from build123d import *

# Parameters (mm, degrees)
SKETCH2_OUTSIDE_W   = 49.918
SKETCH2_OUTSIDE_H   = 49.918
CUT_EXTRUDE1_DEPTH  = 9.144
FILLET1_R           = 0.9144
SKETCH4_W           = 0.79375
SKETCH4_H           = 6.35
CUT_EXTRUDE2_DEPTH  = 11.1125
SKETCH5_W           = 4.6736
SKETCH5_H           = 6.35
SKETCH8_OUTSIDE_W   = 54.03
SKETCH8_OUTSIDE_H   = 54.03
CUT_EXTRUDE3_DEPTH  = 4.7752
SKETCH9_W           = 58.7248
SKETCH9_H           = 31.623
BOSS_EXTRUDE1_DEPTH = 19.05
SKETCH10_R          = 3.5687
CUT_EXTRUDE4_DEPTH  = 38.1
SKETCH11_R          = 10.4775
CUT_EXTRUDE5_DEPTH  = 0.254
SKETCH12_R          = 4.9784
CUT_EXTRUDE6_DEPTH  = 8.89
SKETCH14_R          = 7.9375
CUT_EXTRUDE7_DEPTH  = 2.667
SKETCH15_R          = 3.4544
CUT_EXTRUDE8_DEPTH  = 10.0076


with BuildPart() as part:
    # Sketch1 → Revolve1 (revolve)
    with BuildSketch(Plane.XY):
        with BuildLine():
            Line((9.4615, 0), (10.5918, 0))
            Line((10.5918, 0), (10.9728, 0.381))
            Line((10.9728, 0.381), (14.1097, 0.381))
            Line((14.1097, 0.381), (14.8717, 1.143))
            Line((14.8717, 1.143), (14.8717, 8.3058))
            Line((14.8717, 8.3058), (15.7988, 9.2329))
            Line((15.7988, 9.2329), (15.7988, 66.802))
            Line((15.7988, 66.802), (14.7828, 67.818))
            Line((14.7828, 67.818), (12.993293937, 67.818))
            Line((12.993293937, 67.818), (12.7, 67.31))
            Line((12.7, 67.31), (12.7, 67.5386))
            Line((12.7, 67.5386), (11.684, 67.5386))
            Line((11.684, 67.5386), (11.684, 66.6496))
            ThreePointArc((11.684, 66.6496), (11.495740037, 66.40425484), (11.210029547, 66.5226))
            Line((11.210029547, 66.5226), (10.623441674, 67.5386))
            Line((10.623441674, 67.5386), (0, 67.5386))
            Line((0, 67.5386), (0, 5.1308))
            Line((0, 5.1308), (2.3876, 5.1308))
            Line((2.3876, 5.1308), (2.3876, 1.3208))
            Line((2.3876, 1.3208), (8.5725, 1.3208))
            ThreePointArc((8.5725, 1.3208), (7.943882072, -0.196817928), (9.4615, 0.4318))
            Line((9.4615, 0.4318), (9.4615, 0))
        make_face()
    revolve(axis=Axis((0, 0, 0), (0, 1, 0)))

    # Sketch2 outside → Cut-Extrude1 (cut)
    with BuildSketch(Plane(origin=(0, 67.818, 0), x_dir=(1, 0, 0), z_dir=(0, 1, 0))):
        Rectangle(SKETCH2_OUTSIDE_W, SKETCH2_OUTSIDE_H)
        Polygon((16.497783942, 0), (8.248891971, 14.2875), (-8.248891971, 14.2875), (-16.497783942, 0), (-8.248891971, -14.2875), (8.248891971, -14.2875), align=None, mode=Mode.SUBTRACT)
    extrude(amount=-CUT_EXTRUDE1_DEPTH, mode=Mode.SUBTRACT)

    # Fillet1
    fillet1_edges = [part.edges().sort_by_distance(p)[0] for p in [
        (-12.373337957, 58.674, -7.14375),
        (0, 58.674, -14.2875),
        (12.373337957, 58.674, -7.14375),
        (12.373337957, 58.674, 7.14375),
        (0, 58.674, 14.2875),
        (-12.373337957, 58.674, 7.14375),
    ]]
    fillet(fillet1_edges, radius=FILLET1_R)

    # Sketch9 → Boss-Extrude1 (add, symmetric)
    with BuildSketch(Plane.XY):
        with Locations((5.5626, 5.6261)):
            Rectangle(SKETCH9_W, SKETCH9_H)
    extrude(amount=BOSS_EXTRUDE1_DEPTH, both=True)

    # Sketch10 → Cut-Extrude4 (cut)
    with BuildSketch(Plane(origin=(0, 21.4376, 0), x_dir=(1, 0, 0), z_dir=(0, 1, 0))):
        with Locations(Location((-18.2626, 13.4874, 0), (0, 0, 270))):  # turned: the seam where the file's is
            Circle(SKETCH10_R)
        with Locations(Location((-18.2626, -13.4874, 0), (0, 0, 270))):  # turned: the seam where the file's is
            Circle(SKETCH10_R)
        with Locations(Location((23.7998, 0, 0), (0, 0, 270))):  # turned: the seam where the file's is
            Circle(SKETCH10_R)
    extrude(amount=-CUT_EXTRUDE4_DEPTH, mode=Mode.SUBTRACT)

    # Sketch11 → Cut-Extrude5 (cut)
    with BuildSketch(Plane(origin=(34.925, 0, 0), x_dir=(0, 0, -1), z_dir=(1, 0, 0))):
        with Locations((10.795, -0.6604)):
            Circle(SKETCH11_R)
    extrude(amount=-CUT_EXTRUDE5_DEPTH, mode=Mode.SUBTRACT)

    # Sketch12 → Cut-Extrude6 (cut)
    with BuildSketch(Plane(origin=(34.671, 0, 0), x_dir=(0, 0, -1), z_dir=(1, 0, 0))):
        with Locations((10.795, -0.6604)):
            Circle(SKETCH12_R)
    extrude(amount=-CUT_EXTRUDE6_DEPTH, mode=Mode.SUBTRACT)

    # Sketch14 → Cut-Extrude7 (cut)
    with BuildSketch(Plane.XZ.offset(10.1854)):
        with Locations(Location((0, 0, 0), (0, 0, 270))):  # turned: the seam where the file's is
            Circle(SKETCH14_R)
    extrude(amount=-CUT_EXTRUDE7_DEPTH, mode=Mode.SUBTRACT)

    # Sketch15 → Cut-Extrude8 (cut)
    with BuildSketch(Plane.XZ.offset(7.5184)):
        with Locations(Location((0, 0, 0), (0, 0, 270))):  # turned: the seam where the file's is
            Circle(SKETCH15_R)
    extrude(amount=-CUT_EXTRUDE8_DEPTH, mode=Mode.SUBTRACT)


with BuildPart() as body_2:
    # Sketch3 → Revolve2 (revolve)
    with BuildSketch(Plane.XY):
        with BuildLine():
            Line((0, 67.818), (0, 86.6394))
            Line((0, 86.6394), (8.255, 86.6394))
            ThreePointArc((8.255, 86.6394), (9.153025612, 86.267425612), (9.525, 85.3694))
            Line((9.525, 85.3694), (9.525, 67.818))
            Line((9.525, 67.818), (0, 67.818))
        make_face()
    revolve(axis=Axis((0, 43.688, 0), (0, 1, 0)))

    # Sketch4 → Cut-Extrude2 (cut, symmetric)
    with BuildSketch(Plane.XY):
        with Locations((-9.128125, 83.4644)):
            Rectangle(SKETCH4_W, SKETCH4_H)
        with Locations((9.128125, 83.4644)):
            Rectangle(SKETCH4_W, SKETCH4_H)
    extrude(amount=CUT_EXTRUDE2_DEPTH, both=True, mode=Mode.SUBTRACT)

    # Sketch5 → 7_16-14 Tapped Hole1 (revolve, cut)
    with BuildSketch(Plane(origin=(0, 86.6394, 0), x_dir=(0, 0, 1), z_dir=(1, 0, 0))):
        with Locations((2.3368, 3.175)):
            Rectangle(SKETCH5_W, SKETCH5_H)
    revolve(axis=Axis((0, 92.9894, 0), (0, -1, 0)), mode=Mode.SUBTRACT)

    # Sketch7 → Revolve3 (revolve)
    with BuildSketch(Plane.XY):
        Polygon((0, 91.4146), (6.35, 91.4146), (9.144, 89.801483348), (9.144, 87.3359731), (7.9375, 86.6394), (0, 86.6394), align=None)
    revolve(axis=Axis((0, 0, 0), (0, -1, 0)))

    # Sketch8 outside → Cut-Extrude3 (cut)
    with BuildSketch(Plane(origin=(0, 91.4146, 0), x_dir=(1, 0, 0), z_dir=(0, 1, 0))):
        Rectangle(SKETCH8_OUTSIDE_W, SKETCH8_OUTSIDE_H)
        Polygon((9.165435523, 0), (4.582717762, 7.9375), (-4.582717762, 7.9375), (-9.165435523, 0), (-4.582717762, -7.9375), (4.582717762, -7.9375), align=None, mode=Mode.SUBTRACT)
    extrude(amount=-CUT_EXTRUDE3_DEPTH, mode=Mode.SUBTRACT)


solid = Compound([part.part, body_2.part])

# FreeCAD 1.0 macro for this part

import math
import FreeCAD as App
import Part
import Sketcher
Q = App.Units.Quantity


def edges_at(feature, points):
    """Names of the edges that pass closest to the given points."""
    edges = feature.Shape.Edges
    near = lambda p: min(range(len(edges)), key=lambda i: edges[i].distToShape(Part.Vertex(*p))[0])
    return sorted({f"Edge{near(p) + 1}" for p in points})

doc = App.newDocument("Part")
body = doc.addObject("PartDesign::Body", "Body")

sketch1 = body.newObject("Sketcher::SketchObject", "Sketch")
sketch1.AttachmentSupport = (doc.getObject("XY_Plane"), [""])
sketch1.MapMode = "FlatFace"
sketch1.addGeometry([
    Part.LineSegment(App.Vector(9.4615, 0, 0), App.Vector(10.5918, 0, 0)),
    Part.LineSegment(App.Vector(10.5918, 0, 0), App.Vector(10.9728, 0.381, 0)),
    Part.LineSegment(App.Vector(10.9728, 0.381, 0), App.Vector(14.1097, 0.381, 0)),
    Part.LineSegment(App.Vector(14.1097, 0.381, 0), App.Vector(14.8717, 1.143, 0)),
    Part.LineSegment(App.Vector(14.8717, 1.143, 0), App.Vector(14.8717, 8.3058, 0)),
    Part.LineSegment(App.Vector(14.8717, 8.3058, 0), App.Vector(15.7988, 9.2329, 0)),
    Part.LineSegment(App.Vector(15.7988, 9.2329, 0), App.Vector(15.7988, 66.802, 0)),
    Part.LineSegment(App.Vector(15.7988, 66.802, 0), App.Vector(14.7828, 67.818, 0)),
    Part.LineSegment(App.Vector(14.7828, 67.818, 0), App.Vector(12.993294, 67.818, 0)),
    Part.LineSegment(App.Vector(12.993294, 67.818, 0), App.Vector(12.7, 67.31, 0)),
    Part.LineSegment(App.Vector(12.7, 67.31, 0), App.Vector(12.7, 67.5386, 0)),
    Part.LineSegment(App.Vector(12.7, 67.5386, 0), App.Vector(11.684, 67.5386, 0)),
    Part.LineSegment(App.Vector(11.684, 67.5386, 0), App.Vector(11.684, 66.6496, 0)),
    Part.ArcOfCircle(Part.Circle(App.Vector(11.43, 66.6496, 0), App.Vector(0, 0, 1), 0.254), math.radians(-150), math.radians(0)),
    Part.LineSegment(App.Vector(11.21003, 66.5226, 0), App.Vector(10.623442, 67.5386, 0)),
    Part.LineSegment(App.Vector(10.623442, 67.5386, 0), App.Vector(0, 67.5386, 0)),
    Part.LineSegment(App.Vector(0, 67.5386, 0), App.Vector(0, 5.1308, 0)),
    Part.LineSegment(App.Vector(0, 5.1308, 0), App.Vector(2.3876, 5.1308, 0)),
    Part.LineSegment(App.Vector(2.3876, 5.1308, 0), App.Vector(2.3876, 1.3208, 0)),
    Part.LineSegment(App.Vector(2.3876, 1.3208, 0), App.Vector(8.5725, 1.3208, 0)),
    Part.ArcOfCircle(Part.Circle(App.Vector(8.5725, 0.4318, 0), App.Vector(0, 0, 1), 0.889), math.radians(90), math.radians(360)),
    Part.LineSegment(App.Vector(9.4615, 0.4318, 0), App.Vector(9.4615, 0, 0)),
], False)
sketch1.addConstraint([
    Sketcher.Constraint("Coincident", 0, 2, 1, 1),
    Sketcher.Constraint("Coincident", 1, 2, 2, 1),
    Sketcher.Constraint("Coincident", 2, 2, 3, 1),
    Sketcher.Constraint("Coincident", 3, 2, 4, 1),
    Sketcher.Constraint("Coincident", 4, 2, 5, 1),
    Sketcher.Constraint("Coincident", 5, 2, 6, 1),
    Sketcher.Constraint("Coincident", 6, 2, 7, 1),
    Sketcher.Constraint("Coincident", 7, 2, 8, 1),
    Sketcher.Constraint("Coincident", 8, 2, 9, 1),
    Sketcher.Constraint("Coincident", 9, 2, 10, 1),
    Sketcher.Constraint("Coincident", 10, 2, 11, 1),
    Sketcher.Constraint("Coincident", 11, 2, 12, 1),
    Sketcher.Constraint("Tangent", 12, 2, 13, 2),
    Sketcher.Constraint("Tangent", 13, 1, 14, 1),
    Sketcher.Constraint("Coincident", 14, 2, 15, 1),
    Sketcher.Constraint("Coincident", 15, 2, 16, 1),
    Sketcher.Constraint("Coincident", 16, 2, 17, 1),
    Sketcher.Constraint("Coincident", 17, 2, 18, 1),
    Sketcher.Constraint("Coincident", 18, 2, 19, 1),
    Sketcher.Constraint("Tangent", 19, 2, 20, 1),
    Sketcher.Constraint("Tangent", 20, 2, 21, 1),
    Sketcher.Constraint("Coincident", 21, 2, 0, 1),
    Sketcher.Constraint("Horizontal", 0),
    Sketcher.Constraint("Horizontal", 2),
    Sketcher.Constraint("Vertical", 4),
    Sketcher.Constraint("Vertical", 6),
    Sketcher.Constraint("Horizontal", 8),
    Sketcher.Constraint("Vertical", 10),
    Sketcher.Constraint("Horizontal", 11),
    Sketcher.Constraint("Vertical", 12),
    Sketcher.Constraint("Horizontal", 15),
    Sketcher.Constraint("Vertical", 16),
    Sketcher.Constraint("Horizontal", 17),
    Sketcher.Constraint("Vertical", 18),
    Sketcher.Constraint("Horizontal", 19),
    Sketcher.Constraint("Vertical", 21),
    Sketcher.Constraint("PointOnObject", 0, 2, -1),
    Sketcher.Constraint("PointOnObject", 15, 2, -2),
    Sketcher.Constraint("Parallel", 1, 3),
    Sketcher.Constraint("Parallel", 3, 5),
    Sketcher.Constraint("Perpendicular", 5, 7),
    Sketcher.Constraint("Horizontal", 11, 2, 14, 2),
    Sketcher.Constraint("Radius", 13, Q("0.01 in")),
    Sketcher.Constraint("Angle", 1, Q("45 deg")),
    Sketcher.Constraint("Angle", 9, Q("-120 deg")),
    Sketcher.Constraint("Angle", 14, Q("120 deg")),
    Sketcher.Constraint("Radius", 20, Q("0.035 in")),
    Sketcher.Constraint("DistanceX", 11, 2, 11, 1, Q("0.04 in")),
    Sketcher.Constraint("DistanceY", 18, 2, 18, 1, Q("0.15 in")),
    Sketcher.Constraint("DistanceX", -1, 1, 9, 2, Q("0.5 in")),
    Sketcher.Constraint("DistanceX", 17, 1, 17, 2, Q("0.094 in")),
    Sketcher.Constraint("DistanceY", 4, 1, 4, 2, Q("0.282 in")),
    Sketcher.Constraint("DistanceY", 10, 1, 10, 2, Q("0.009 in")),
    Sketcher.Constraint("DistanceY", 12, 2, 12, 1, Q("0.035 in")),
    Sketcher.Constraint("DistanceY", 16, 2, 16, 1, Q("2.457 in")),
    Sketcher.Constraint("DistanceY", 21, 2, 21, 1, Q("0.017 in")),
    Sketcher.Constraint("DistanceY", -1, 1, 6, 2, Q("2.63 in")),
    Sketcher.Constraint("DistanceY", -1, 1, 7, 2, Q("2.67 in")),
    Sketcher.Constraint("DistanceX", 2, 2, 3, 2, Q("0.03 in")),
    Sketcher.Constraint("DistanceY", 20, 3, 4, 2, Q("0.31 in")),
    Sketcher.Constraint("DistanceX", 1, 2, 5, 2, Q("0.19 in")),
    Sketcher.Constraint("DistanceX", 0, 1, 0, 2, Q("0.0445 in")),
    Sketcher.Constraint("DistanceX", 2, 1, 2, 2, Q("0.1235 in")),
    Sketcher.Constraint("DistanceX", 19, 1, 19, 2, Q("0.2435 in")),
])
revolution = body.newObject("PartDesign::Revolution", "Revolution")
revolution.Profile = sketch1
revolution.ReferenceAxis = (sketch1, ["V_Axis"])
revolution.Angle = 360

sketch2 = body.newObject("Sketcher::SketchObject", "Sketch001")
sketch2.AttachmentSupport = (doc.getObject("XZ_Plane"), [""])
sketch2.MapMode = "FlatFace"
sketch2.AttachmentOffset = App.Placement(App.Vector(0, 0, -2.67 * 25.4), App.Rotation())
sketch2.addGeometry([
    Part.LineSegment(App.Vector(-24.959, -24.959, 0), App.Vector(-24.959, 24.959, 0)),
    Part.LineSegment(App.Vector(-24.959, 24.959, 0), App.Vector(24.959, 24.959, 0)),
    Part.LineSegment(App.Vector(24.959, 24.959, 0), App.Vector(24.959, -24.959, 0)),
    Part.LineSegment(App.Vector(24.959, -24.959, 0), App.Vector(-24.959, -24.959, 0)),
    Part.LineSegment(App.Vector(8.248892, -14.2875, 0), App.Vector(16.497784, 0, 0)),
    Part.LineSegment(App.Vector(16.497784, 0, 0), App.Vector(8.248892, 14.2875, 0)),
    Part.LineSegment(App.Vector(8.248892, 14.2875, 0), App.Vector(-8.248892, 14.2875, 0)),
    Part.LineSegment(App.Vector(-8.248892, 14.2875, 0), App.Vector(-16.497784, 0, 0)),
    Part.LineSegment(App.Vector(-16.497784, 0, 0), App.Vector(-8.248892, -14.2875, 0)),
    Part.LineSegment(App.Vector(-8.248892, -14.2875, 0), App.Vector(8.248892, -14.2875, 0)),
], False)
sketch2.addConstraint([
    Sketcher.Constraint("Coincident", 0, 2, 1, 1),
    Sketcher.Constraint("Coincident", 1, 2, 2, 1),
    Sketcher.Constraint("Coincident", 2, 2, 3, 1),
    Sketcher.Constraint("Coincident", 3, 2, 0, 1),
    Sketcher.Constraint("Coincident", 4, 2, 5, 1),
    Sketcher.Constraint("Coincident", 5, 2, 6, 1),
    Sketcher.Constraint("Coincident", 6, 2, 7, 1),
    Sketcher.Constraint("Coincident", 7, 2, 8, 1),
    Sketcher.Constraint("Coincident", 8, 2, 9, 1),
    Sketcher.Constraint("Coincident", 9, 2, 4, 1),
    Sketcher.Constraint("Vertical", 0),
    Sketcher.Constraint("Horizontal", 1),
    Sketcher.Constraint("Vertical", 2),
    Sketcher.Constraint("Horizontal", 3),
    Sketcher.Constraint("Horizontal", 6),
    Sketcher.Constraint("Horizontal", 9),
    Sketcher.Constraint("Symmetric", 0, 2, 2, 2, -1, 1),
    Sketcher.Constraint("Symmetric", 4, 2, 7, 2, -1, 1),
    Sketcher.Constraint("Symmetric", 5, 2, 8, 2, -1, 1),
    Sketcher.Constraint("PointOnObject", 4, 2, -1),
    Sketcher.Constraint("Parallel", 4, 7),
    Sketcher.Constraint("Vertical", 6, 2, 8, 2),
    Sketcher.Constraint("Equal", 3, 0),
    Sketcher.Constraint("Angle", 4, Q("60 deg")),
    Sketcher.Constraint("DistanceY", -1, 1, 5, 2, Q("0.5625 in")),
    Sketcher.Constraint("DistanceX", 1, 1, 1, 2, 49.918),
    Sketcher.Constraint("DistanceX", 6, 2, 6, 1, 16.497784),
])
pocket1 = body.newObject("PartDesign::Pocket", "Pocket")
pocket1.Profile = sketch2
pocket1.Length = Q("0.36 in")
pocket1.Reversed = True
doc.recompute()

fillet = body.newObject("PartDesign::Fillet", "Fillet")
fillet.Base = (pocket1, edges_at(pocket1, [
    (-12.373, 58.674, -7.144),
    (0, 58.674, -14.287),
    (12.373, 58.674, -7.144),
    (12.373, 58.674, 7.144),
    (0, 58.674, 14.287),
    (-12.373, 58.674, 7.144),
]))
fillet.Radius = Q("0.036 in")

sketch3 = body.newObject("Sketcher::SketchObject", "Sketch002")
sketch3.AttachmentSupport = (doc.getObject("XY_Plane"), [""])
sketch3.MapMode = "FlatFace"
sketch3.addGeometry([
    Part.LineSegment(App.Vector(-23.7998, 21.4376, 0), App.Vector(-23.7998, -10.1854, 0)),
    Part.LineSegment(App.Vector(-23.7998, -10.1854, 0), App.Vector(34.925, -10.1854, 0)),
    Part.LineSegment(App.Vector(34.925, -10.1854, 0), App.Vector(34.925, 21.4376, 0)),
    Part.LineSegment(App.Vector(34.925, 21.4376, 0), App.Vector(-23.7998, 21.4376, 0)),
], False)
sketch3.addConstraint([
    Sketcher.Constraint("Coincident", 0, 2, 1, 1),
    Sketcher.Constraint("Coincident", 1, 2, 2, 1),
    Sketcher.Constraint("Coincident", 2, 2, 3, 1),
    Sketcher.Constraint("Coincident", 3, 2, 0, 1),
    Sketcher.Constraint("Vertical", 0),
    Sketcher.Constraint("Horizontal", 1),
    Sketcher.Constraint("Vertical", 2),
    Sketcher.Constraint("Horizontal", 3),
    Sketcher.Constraint("DistanceX", 1, 1, 1, 2, Q("2.312 in")),
    Sketcher.Constraint("DistanceY", 0, 2, 0, 1, Q("1.245 in")),
    Sketcher.Constraint("DistanceX", 0, 2, -1, 1, Q("0.937 in")),
    Sketcher.Constraint("DistanceY", 0, 2, -1, 1, Q("0.401 in")),
])
pad1 = body.newObject("PartDesign::Pad", "Pad")
pad1.Profile = sketch3
pad1.Length = Q("1.5 in")
pad1.Midplane = True

sketch4 = body.newObject("Sketcher::SketchObject", "Sketch003")
sketch4.AttachmentSupport = (doc.getObject("XZ_Plane"), [""])
sketch4.MapMode = "FlatFace"
sketch4.AttachmentOffset = App.Placement(App.Vector(0, 0, -0.844 * 25.4), App.Rotation())
sketch4.addGeometry([
    Part.Circle(App.Vector(-18.2626, -13.4874, 0), App.Vector(0, 0, 1), 3.5687),
    Part.Circle(App.Vector(-18.2626, 13.4874, 0), App.Vector(0, 0, 1), 3.5687),
    Part.Circle(App.Vector(23.7998, 0, 0), App.Vector(0, 0, 1), 3.5687),
], False)
sketch4.addConstraint([
    Sketcher.Constraint("Equal", 0, 1),
    Sketcher.Constraint("Equal", 1, 2),
    Sketcher.Constraint("Symmetric", 0, 3, 1, 3, -1),
    Sketcher.Constraint("PointOnObject", 2, 3, -1),
    Sketcher.Constraint("Diameter", 0, Q("0.281 in")),
    Sketcher.Constraint("DistanceX", 0, 3, -1, 1, Q("0.719 in")),
    Sketcher.Constraint("DistanceY", 0, 3, -1, 1, Q("0.531 in")),
    Sketcher.Constraint("DistanceX", -1, 1, 2, 3, Q("0.937 in")),
])
pocket2 = body.newObject("PartDesign::Pocket", "Pocket001")
pocket2.Profile = sketch4
pocket2.Length = Q("1.5 in")
pocket2.Reversed = True

sketch5 = body.newObject("Sketcher::SketchObject", "Sketch004")
sketch5.AttachmentSupport = (doc.getObject("YZ_Plane"), [""])
sketch5.MapMode = "FlatFace"
sketch5.AttachmentOffset = App.Placement(App.Vector(0, 0, 1.375 * 25.4), App.Rotation())
sketch5.addGeometry(Part.Circle(App.Vector(-0.6604, -10.795, 0), App.Vector(0, 0, 1), 10.4775), False)
sketch5.addConstraint([
    Sketcher.Constraint("Diameter", 0, Q("0.825 in")),
    Sketcher.Constraint("DistanceX", 0, 3, -1, 1, Q("0.026 in")),
    Sketcher.Constraint("DistanceY", 0, 3, -1, 1, Q("0.425 in")),
])
pocket3 = body.newObject("PartDesign::Pocket", "Pocket002")
pocket3.Profile = sketch5
pocket3.Length = Q("0.01 in")

sketch6 = body.newObject("Sketcher::SketchObject", "Sketch005")
sketch6.AttachmentSupport = (doc.getObject("YZ_Plane"), [""])
sketch6.MapMode = "FlatFace"
sketch6.AttachmentOffset = App.Placement(App.Vector(0, 0, 1.365 * 25.4), App.Rotation())
sketch6.addGeometry(Part.Circle(App.Vector(-0.6604, -10.795, 0), App.Vector(0, 0, 1), 4.9784), False)
sketch6.addConstraint([
    Sketcher.Constraint("Diameter", 0, Q("0.392 in")),
    Sketcher.Constraint("DistanceX", 0, 3, -1, 1, Q("0.026 in")),
    Sketcher.Constraint("DistanceY", 0, 3, -1, 1, Q("0.425 in")),
])
pocket4 = body.newObject("PartDesign::Pocket", "Pocket003")
pocket4.Profile = sketch6
pocket4.Length = Q("0.35 in")

sketch7 = body.newObject("Sketcher::SketchObject", "Sketch006")
sketch7.AttachmentSupport = (doc.getObject("XZ_Plane"), [""])
sketch7.MapMode = "FlatFace"
sketch7.AttachmentOffset = App.Placement(App.Vector(0, 0, 0.401 * 25.4), App.Rotation())
sketch7.addGeometry(Part.Circle(App.Vector(0, 0, 0), App.Vector(0, 0, 1), 7.9375), False)
sketch7.addConstraint([
    Sketcher.Constraint("Coincident", 0, 3, -1, 1),
    Sketcher.Constraint("Diameter", 0, Q("0.625 in")),
])
pocket5 = body.newObject("PartDesign::Pocket", "Pocket004")
pocket5.Profile = sketch7
pocket5.Length = Q("0.105 in")

sketch8 = body.newObject("Sketcher::SketchObject", "Sketch007")
sketch8.AttachmentSupport = (doc.getObject("XZ_Plane"), [""])
sketch8.MapMode = "FlatFace"
sketch8.AttachmentOffset = App.Placement(App.Vector(0, 0, 0.296 * 25.4), App.Rotation())
sketch8.addGeometry(Part.Circle(App.Vector(0, 0, 0), App.Vector(0, 0, 1), 3.4544), False)
sketch8.addConstraint([
    Sketcher.Constraint("Coincident", 0, 3, -1, 1),
    Sketcher.Constraint("Diameter", 0, Q("0.272 in")),
])
pocket6 = body.newObject("PartDesign::Pocket", "Pocket005")
pocket6.Profile = sketch8
pocket6.Length = Q("0.394 in")
body2 = doc.addObject("PartDesign::Body", "Body001")

sketch9 = body2.newObject("Sketcher::SketchObject", "Sketch008")
sketch9.AttachmentSupport = (doc.getObject("XY_Plane001"), [""])
sketch9.MapMode = "FlatFace"
sketch9.addGeometry([
    Part.LineSegment(App.Vector(0, 86.6394, 0), App.Vector(0, 67.818, 0)),
    Part.LineSegment(App.Vector(0, 67.818, 0), App.Vector(9.525, 67.818, 0)),
    Part.LineSegment(App.Vector(9.525, 67.818, 0), App.Vector(9.525, 85.3694, 0)),
    Part.ArcOfCircle(Part.Circle(App.Vector(8.255, 85.3694, 0), App.Vector(0, 0, 1), 1.27), math.radians(0), math.radians(90)),
    Part.LineSegment(App.Vector(8.255, 86.6394, 0), App.Vector(0, 86.6394, 0)),
], False)
sketch9.addConstraint([
    Sketcher.Constraint("Coincident", 0, 2, 1, 1),
    Sketcher.Constraint("Coincident", 1, 2, 2, 1),
    Sketcher.Constraint("Tangent", 2, 2, 3, 1),
    Sketcher.Constraint("Tangent", 3, 2, 4, 1),
    Sketcher.Constraint("Coincident", 4, 2, 0, 1),
    Sketcher.Constraint("Vertical", 0),
    Sketcher.Constraint("Horizontal", 1),
    Sketcher.Constraint("Vertical", 2),
    Sketcher.Constraint("Horizontal", 4),
    Sketcher.Constraint("PointOnObject", 0, 2, -2),
    Sketcher.Constraint("Radius", 3, Q("0.05 in")),
    Sketcher.Constraint("DistanceX", 1, 1, 1, 2, Q("0.375 in")),
    Sketcher.Constraint("DistanceY", 0, 2, 0, 1, Q("0.741 in")),
    Sketcher.Constraint("DistanceY", -1, 1, 0, 2, Q("2.67 in")),
])
revolution2 = body2.newObject("PartDesign::Revolution", "Revolution001")
revolution2.Profile = sketch9
revolution2.ReferenceAxis = (sketch9, ["V_Axis"])
revolution2.Angle = 360

sketch10 = body2.newObject("Sketcher::SketchObject", "Sketch009")
sketch10.AttachmentSupport = (doc.getObject("XY_Plane001"), [""])
sketch10.MapMode = "FlatFace"
sketch10.addGeometry([
    Part.LineSegment(App.Vector(-9.525, 86.6394, 0), App.Vector(-9.525, 80.2894, 0)),
    Part.LineSegment(App.Vector(-9.525, 80.2894, 0), App.Vector(-8.73125, 80.2894, 0)),
    Part.LineSegment(App.Vector(-8.73125, 80.2894, 0), App.Vector(-8.73125, 86.6394, 0)),
    Part.LineSegment(App.Vector(-8.73125, 86.6394, 0), App.Vector(-9.525, 86.6394, 0)),
    Part.LineSegment(App.Vector(8.73125, 86.6394, 0), App.Vector(8.73125, 80.2894, 0)),
    Part.LineSegment(App.Vector(8.73125, 80.2894, 0), App.Vector(9.525, 80.2894, 0)),
    Part.LineSegment(App.Vector(9.525, 80.2894, 0), App.Vector(9.525, 86.6394, 0)),
    Part.LineSegment(App.Vector(9.525, 86.6394, 0), App.Vector(8.73125, 86.6394, 0)),
], False)
sketch10.addConstraint([
    Sketcher.Constraint("Coincident", 0, 2, 1, 1),
    Sketcher.Constraint("Coincident", 1, 2, 2, 1),
    Sketcher.Constraint("Coincident", 2, 2, 3, 1),
    Sketcher.Constraint("Coincident", 3, 2, 0, 1),
    Sketcher.Constraint("Coincident", 4, 2, 5, 1),
    Sketcher.Constraint("Coincident", 5, 2, 6, 1),
    Sketcher.Constraint("Coincident", 6, 2, 7, 1),
    Sketcher.Constraint("Coincident", 7, 2, 4, 1),
    Sketcher.Constraint("Vertical", 0),
    Sketcher.Constraint("Horizontal", 1),
    Sketcher.Constraint("Vertical", 2),
    Sketcher.Constraint("Horizontal", 3),
    Sketcher.Constraint("Vertical", 4),
    Sketcher.Constraint("Horizontal", 5),
    Sketcher.Constraint("Vertical", 6),
    Sketcher.Constraint("Horizontal", 7),
    Sketcher.Constraint("Symmetric", 1, 2, 4, 2, -2),
    Sketcher.Constraint("Symmetric", 3, 2, 6, 2, -2),
    Sketcher.Constraint("DistanceY", 0, 2, 0, 1, Q("0.25 in")),
    Sketcher.Constraint("DistanceX", 1, 1, 1, 2, Q("0.03125 in")),
    Sketcher.Constraint("DistanceX", 0, 2, 5, 2, Q("0.75 in")),
    Sketcher.Constraint("DistanceY", -1, 1, 0, 2, Q("3.161 in")),
])
pocket7 = body2.newObject("PartDesign::Pocket", "Pocket006")
pocket7.Profile = sketch10
pocket7.Length = Q("0.875 in")
pocket7.Midplane = True

sketch11 = body2.newObject("Sketcher::SketchObject", "Sketch010")
sketch11.AttachmentSupport = (doc.getObject("YZ_Plane001"), [""])
sketch11.MapMode = "FlatFace"
sketch11.addGeometry([
    Part.LineSegment(App.Vector(80.2894, 0, 0), App.Vector(86.6394, 0, 0)),
    Part.LineSegment(App.Vector(86.6394, 0, 0), App.Vector(86.6394, 4.6736, 0)),
    Part.LineSegment(App.Vector(86.6394, 4.6736, 0), App.Vector(80.2894, 4.6736, 0)),
    Part.LineSegment(App.Vector(80.2894, 4.6736, 0), App.Vector(80.2894, 0, 0)),
], False)
sketch11.addConstraint([
    Sketcher.Constraint("Coincident", 0, 2, 1, 1),
    Sketcher.Constraint("Coincident", 1, 2, 2, 1),
    Sketcher.Constraint("Coincident", 2, 2, 3, 1),
    Sketcher.Constraint("Coincident", 3, 2, 0, 1),
    Sketcher.Constraint("Horizontal", 0),
    Sketcher.Constraint("Vertical", 1),
    Sketcher.Constraint("Horizontal", 2),
    Sketcher.Constraint("Vertical", 3),
    Sketcher.Constraint("PointOnObject", 0, 2, -1),
    Sketcher.Constraint("DistanceX", 0, 1, 0, 2, Q("0.25 in")),
    Sketcher.Constraint("DistanceY", 1, 1, 1, 2, Q("0.184 in")),
    Sketcher.Constraint("DistanceX", -1, 1, 0, 2, Q("3.411 in")),
])
groove = body2.newObject("PartDesign::Groove", "Groove")
groove.Profile = sketch11
groove.ReferenceAxis = (sketch11, ["H_Axis"])
groove.Angle = 360

sketch12 = body2.newObject("Sketcher::SketchObject", "Sketch011")
sketch12.AttachmentSupport = (doc.getObject("XY_Plane001"), [""])
sketch12.MapMode = "FlatFace"
sketch12.addGeometry([
    Part.LineSegment(App.Vector(6.35, 91.4146, 0), App.Vector(0, 91.4146, 0)),
    Part.LineSegment(App.Vector(0, 91.4146, 0), App.Vector(0, 86.6394, 0)),
    Part.LineSegment(App.Vector(0, 86.6394, 0), App.Vector(7.9375, 86.6394, 0)),
    Part.LineSegment(App.Vector(7.9375, 86.6394, 0), App.Vector(9.144, 87.335973, 0)),
    Part.LineSegment(App.Vector(9.144, 87.335973, 0), App.Vector(9.144, 89.801483, 0)),
    Part.LineSegment(App.Vector(9.144, 89.801483, 0), App.Vector(6.35, 91.4146, 0)),
], False)
sketch12.addConstraint([
    Sketcher.Constraint("Coincident", 0, 2, 1, 1),
    Sketcher.Constraint("Coincident", 1, 2, 2, 1),
    Sketcher.Constraint("Coincident", 2, 2, 3, 1),
    Sketcher.Constraint("Coincident", 3, 2, 4, 1),
    Sketcher.Constraint("Coincident", 4, 2, 5, 1),
    Sketcher.Constraint("Coincident", 5, 2, 0, 1),
    Sketcher.Constraint("Horizontal", 0),
    Sketcher.Constraint("Vertical", 1),
    Sketcher.Constraint("Horizontal", 2),
    Sketcher.Constraint("Vertical", 4),
    Sketcher.Constraint("PointOnObject", 0, 2, -2),
    Sketcher.Constraint("Angle", 3, Q("30 deg")),
    Sketcher.Constraint("Angle", 5, Q("150 deg")),
    Sketcher.Constraint("DistanceX", 0, 2, 0, 1, Q("0.25 in")),
    Sketcher.Constraint("DistanceX", 2, 1, 2, 2, Q("0.3125 in")),
    Sketcher.Constraint("DistanceY", 1, 2, 1, 1, Q("0.188 in")),
    Sketcher.Constraint("DistanceX", -1, 1, 3, 2, Q("0.36 in")),
    Sketcher.Constraint("DistanceY", -1, 1, 0, 2, Q("3.599 in")),
])
revolution3 = body2.newObject("PartDesign::Revolution", "Revolution002")
revolution3.Profile = sketch12
revolution3.ReferenceAxis = (sketch12, ["V_Axis"])
revolution3.Angle = 360

sketch13 = body2.newObject("Sketcher::SketchObject", "Sketch012")
sketch13.AttachmentSupport = (doc.getObject("XZ_Plane001"), [""])
sketch13.MapMode = "FlatFace"
sketch13.AttachmentOffset = App.Placement(App.Vector(0, 0, -3.599 * 25.4), App.Rotation())
sketch13.addGeometry([
    Part.LineSegment(App.Vector(-27.015, -27.015, 0), App.Vector(-27.015, 27.015, 0)),
    Part.LineSegment(App.Vector(-27.015, 27.015, 0), App.Vector(27.015, 27.015, 0)),
    Part.LineSegment(App.Vector(27.015, 27.015, 0), App.Vector(27.015, -27.015, 0)),
    Part.LineSegment(App.Vector(27.015, -27.015, 0), App.Vector(-27.015, -27.015, 0)),
    Part.LineSegment(App.Vector(4.582718, -7.9375, 0), App.Vector(9.165436, 0, 0)),
    Part.LineSegment(App.Vector(9.165436, 0, 0), App.Vector(4.582718, 7.9375, 0)),
    Part.LineSegment(App.Vector(4.582718, 7.9375, 0), App.Vector(-4.582718, 7.9375, 0)),
    Part.LineSegment(App.Vector(-4.582718, 7.9375, 0), App.Vector(-9.165436, 0, 0)),
    Part.LineSegment(App.Vector(-9.165436, 0, 0), App.Vector(-4.582718, -7.9375, 0)),
    Part.LineSegment(App.Vector(-4.582718, -7.9375, 0), App.Vector(4.582718, -7.9375, 0)),
], False)
sketch13.addConstraint([
    Sketcher.Constraint("Coincident", 0, 2, 1, 1),
    Sketcher.Constraint("Coincident", 1, 2, 2, 1),
    Sketcher.Constraint("Coincident", 2, 2, 3, 1),
    Sketcher.Constraint("Coincident", 3, 2, 0, 1),
    Sketcher.Constraint("Coincident", 4, 2, 5, 1),
    Sketcher.Constraint("Coincident", 5, 2, 6, 1),
    Sketcher.Constraint("Coincident", 6, 2, 7, 1),
    Sketcher.Constraint("Coincident", 7, 2, 8, 1),
    Sketcher.Constraint("Coincident", 8, 2, 9, 1),
    Sketcher.Constraint("Coincident", 9, 2, 4, 1),
    Sketcher.Constraint("Vertical", 0),
    Sketcher.Constraint("Horizontal", 1),
    Sketcher.Constraint("Vertical", 2),
    Sketcher.Constraint("Horizontal", 3),
    Sketcher.Constraint("Horizontal", 6),
    Sketcher.Constraint("Horizontal", 9),
    Sketcher.Constraint("Symmetric", 0, 2, 2, 2, -1, 1),
    Sketcher.Constraint("Symmetric", 4, 2, 7, 2, -1, 1),
    Sketcher.Constraint("Symmetric", 5, 2, 8, 2, -1, 1),
    Sketcher.Constraint("PointOnObject", 4, 2, -1),
    Sketcher.Constraint("Parallel", 4, 7),
    Sketcher.Constraint("Vertical", 6, 2, 8, 2),
    Sketcher.Constraint("Equal", 3, 0),
    Sketcher.Constraint("Angle", 4, Q("60 deg")),
    Sketcher.Constraint("DistanceY", -1, 1, 5, 2, Q("0.3125 in")),
    Sketcher.Constraint("DistanceX", 1, 1, 1, 2, 54.03),
    Sketcher.Constraint("DistanceX", 6, 2, 6, 1, 9.165436),
])
pocket8 = body2.newObject("PartDesign::Pocket", "Pocket007")
pocket8.Profile = sketch13
pocket8.Length = Q("0.188 in")
pocket8.Reversed = True

doc.recompute()
